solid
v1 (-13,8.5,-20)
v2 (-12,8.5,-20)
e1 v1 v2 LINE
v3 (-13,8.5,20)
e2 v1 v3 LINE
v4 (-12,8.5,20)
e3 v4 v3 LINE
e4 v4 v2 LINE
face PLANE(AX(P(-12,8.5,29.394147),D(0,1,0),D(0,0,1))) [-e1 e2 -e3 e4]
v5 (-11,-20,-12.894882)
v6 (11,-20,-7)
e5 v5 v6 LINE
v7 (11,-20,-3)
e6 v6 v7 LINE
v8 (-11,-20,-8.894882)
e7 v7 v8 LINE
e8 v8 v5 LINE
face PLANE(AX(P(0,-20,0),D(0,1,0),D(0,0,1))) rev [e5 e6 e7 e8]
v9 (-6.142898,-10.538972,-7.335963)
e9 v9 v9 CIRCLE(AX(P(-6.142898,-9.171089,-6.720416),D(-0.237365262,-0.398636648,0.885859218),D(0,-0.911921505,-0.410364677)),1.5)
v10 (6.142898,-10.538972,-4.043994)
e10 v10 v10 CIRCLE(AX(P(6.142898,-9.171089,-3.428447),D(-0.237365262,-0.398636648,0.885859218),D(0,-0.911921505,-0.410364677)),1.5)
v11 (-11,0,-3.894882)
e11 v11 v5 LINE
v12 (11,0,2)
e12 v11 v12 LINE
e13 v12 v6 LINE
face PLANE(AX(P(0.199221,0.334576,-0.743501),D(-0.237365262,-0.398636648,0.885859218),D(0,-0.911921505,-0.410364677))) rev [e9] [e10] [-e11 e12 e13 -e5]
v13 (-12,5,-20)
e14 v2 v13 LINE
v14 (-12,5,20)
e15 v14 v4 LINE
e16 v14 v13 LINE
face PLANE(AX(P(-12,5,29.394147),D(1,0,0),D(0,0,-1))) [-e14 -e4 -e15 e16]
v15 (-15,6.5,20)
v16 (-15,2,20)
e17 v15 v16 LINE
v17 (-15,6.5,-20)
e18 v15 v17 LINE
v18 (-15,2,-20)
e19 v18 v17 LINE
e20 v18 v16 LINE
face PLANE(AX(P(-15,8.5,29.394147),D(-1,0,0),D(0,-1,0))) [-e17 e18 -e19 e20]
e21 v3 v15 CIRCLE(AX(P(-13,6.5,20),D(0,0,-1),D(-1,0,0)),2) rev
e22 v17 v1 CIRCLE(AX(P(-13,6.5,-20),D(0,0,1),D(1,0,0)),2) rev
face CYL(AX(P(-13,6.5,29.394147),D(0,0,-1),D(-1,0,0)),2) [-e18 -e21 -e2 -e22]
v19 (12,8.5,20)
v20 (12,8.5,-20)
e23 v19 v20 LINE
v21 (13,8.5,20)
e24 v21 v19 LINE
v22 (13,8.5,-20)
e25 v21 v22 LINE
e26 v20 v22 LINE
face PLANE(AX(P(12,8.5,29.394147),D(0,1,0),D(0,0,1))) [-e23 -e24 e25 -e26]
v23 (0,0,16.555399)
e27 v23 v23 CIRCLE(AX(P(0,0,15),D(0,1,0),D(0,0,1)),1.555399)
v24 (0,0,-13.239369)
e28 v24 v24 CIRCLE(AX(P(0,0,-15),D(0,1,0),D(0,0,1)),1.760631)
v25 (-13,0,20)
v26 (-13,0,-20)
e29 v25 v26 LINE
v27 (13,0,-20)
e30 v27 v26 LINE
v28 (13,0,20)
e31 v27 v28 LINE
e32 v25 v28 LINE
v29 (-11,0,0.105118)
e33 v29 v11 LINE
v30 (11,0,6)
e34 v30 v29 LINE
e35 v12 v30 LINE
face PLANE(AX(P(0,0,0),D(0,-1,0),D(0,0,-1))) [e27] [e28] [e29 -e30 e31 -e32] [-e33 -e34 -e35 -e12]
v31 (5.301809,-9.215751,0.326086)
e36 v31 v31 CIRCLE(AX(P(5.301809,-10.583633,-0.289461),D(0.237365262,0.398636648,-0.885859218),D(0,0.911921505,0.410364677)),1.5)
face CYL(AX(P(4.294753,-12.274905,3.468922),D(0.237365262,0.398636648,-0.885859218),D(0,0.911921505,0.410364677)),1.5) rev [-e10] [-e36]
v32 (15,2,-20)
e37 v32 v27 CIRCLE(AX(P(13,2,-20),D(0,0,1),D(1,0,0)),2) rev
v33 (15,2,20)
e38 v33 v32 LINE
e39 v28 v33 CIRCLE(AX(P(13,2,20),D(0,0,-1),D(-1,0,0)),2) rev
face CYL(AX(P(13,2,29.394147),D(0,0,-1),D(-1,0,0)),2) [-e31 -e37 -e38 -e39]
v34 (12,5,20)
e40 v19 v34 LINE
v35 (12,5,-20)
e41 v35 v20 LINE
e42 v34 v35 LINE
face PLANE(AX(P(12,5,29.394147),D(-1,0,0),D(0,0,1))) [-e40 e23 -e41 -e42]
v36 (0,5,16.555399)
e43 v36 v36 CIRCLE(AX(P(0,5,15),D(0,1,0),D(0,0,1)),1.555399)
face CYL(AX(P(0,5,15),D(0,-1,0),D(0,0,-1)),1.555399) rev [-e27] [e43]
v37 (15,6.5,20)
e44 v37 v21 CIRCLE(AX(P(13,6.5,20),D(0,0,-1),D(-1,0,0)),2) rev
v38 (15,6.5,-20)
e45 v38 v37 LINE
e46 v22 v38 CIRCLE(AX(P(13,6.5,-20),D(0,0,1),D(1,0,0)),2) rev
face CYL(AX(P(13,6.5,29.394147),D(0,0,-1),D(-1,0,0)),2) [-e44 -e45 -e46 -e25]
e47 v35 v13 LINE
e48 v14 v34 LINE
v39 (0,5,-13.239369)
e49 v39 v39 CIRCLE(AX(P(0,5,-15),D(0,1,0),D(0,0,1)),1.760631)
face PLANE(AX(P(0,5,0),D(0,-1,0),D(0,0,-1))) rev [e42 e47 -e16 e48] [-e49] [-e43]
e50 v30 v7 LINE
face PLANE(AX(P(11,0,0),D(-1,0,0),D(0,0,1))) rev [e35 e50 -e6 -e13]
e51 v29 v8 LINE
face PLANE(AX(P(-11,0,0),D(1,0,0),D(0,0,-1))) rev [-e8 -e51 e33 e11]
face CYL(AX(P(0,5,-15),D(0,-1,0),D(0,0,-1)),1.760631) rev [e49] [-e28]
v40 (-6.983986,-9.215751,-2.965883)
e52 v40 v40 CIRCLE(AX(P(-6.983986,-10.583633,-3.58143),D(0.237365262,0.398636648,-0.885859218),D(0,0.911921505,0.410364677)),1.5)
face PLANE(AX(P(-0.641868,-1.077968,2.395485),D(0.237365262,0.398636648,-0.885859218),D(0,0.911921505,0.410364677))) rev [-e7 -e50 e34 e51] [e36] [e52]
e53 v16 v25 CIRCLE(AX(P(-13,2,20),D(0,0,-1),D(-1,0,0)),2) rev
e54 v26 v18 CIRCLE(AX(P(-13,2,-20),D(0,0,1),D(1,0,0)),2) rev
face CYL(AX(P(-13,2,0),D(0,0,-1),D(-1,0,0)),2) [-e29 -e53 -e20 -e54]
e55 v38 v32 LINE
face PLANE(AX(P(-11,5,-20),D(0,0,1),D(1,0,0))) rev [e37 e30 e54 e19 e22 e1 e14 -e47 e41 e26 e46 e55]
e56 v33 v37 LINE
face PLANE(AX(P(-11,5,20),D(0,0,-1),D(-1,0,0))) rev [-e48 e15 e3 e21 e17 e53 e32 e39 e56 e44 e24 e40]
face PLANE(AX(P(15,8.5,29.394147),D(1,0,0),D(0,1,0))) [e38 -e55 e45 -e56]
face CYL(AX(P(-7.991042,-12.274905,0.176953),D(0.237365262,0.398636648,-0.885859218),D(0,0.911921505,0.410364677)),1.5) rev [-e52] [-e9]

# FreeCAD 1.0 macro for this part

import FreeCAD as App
import Part
import Sketcher
from FreeCAD import Vector
Q = App.Units.Quantity


def edges_at(feature, points):
    """Names of the edges that pass closest to the given points."""
    edges = feature.Shape.Edges
    near = lambda p: min(range(len(edges)), key=lambda i: edges[i].distToShape(Part.Vertex(*p))[0])
    return sorted({f"Edge{near(p) + 1}" for p in points})

doc = App.newDocument("Part")
body = doc.addObject("PartDesign::Body", "Body")

# Sketch on XZ plane
sketch1 = doc.addObject("Sketcher::SketchObject", "Sketch")
body.addObject(sketch1)
sketch1.AttachmentSupport = (doc.XZ_Plane, [""])
sketch1.MapMode = "FlatFace"
sketch1.addGeometry([
    Part.LineSegment(Vector(-11, -20, 0), Vector(-11, 20, 0)),  # 0
    Part.LineSegment(Vector(-11, 20, 0), Vector(11, 20, 0)),  # 1
    Part.LineSegment(Vector(11, 20, 0), Vector(11, -20, 0)),  # 2
    Part.LineSegment(Vector(11, -20, 0), Vector(-11, -20, 0)),  # 3
    Part.Circle(Vector(0, 15, 0), Vector(0, 0, 1), 1.6),  # 4
    Part.Circle(Vector(0, -15, 0), Vector(0, 0, 1), 1.8),  # 5
], False)
sketch1.addConstraint([
    Sketcher.Constraint("Coincident", 0, 2, 1, 1),
    Sketcher.Constraint("Coincident", 1, 2, 2, 1),
    Sketcher.Constraint("Coincident", 2, 2, 3, 1),
    Sketcher.Constraint("Coincident", 3, 2, 0, 1),
    Sketcher.Constraint("Vertical", 0),
    Sketcher.Constraint("Horizontal", 1),
    Sketcher.Constraint("Vertical", 2),
    Sketcher.Constraint("Horizontal", 3),
    Sketcher.Constraint("Symmetric", 4, 3, 5, 3, -1, 1),
    Sketcher.Constraint("Symmetric", 0, 2, 2, 2, -1, 1),
    Sketcher.Constraint("PointOnObject", 4, 3, -2),
    Sketcher.Constraint("DistanceX", 1, 1, 1, 2, 22.0),
    Sketcher.Constraint("DistanceY", 0, 1, 0, 2, 40.0),
    Sketcher.Constraint("DistanceY", -1, 1, 4, 3, 15.0),
    Sketcher.Constraint("Diameter", 4, 3.110798),
    Sketcher.Constraint("Diameter", 5, 3.521262),
])
pad1 = doc.addObject("PartDesign::Pad", "Pad")
body.addObject(pad1)
pad1.Profile = sketch1
pad1.Length = 5
pad1.Reversed = True

# Sketch on XY plane
sketch2 = doc.addObject("Sketcher::SketchObject", "Sketch001")
body.addObject(sketch2)
sketch2.AttachmentSupport = (doc.XY_Plane, [""])
sketch2.MapMode = "FlatFace"
sketch2.AttachmentOffset = App.Placement(Vector(0, 0, -20), App.Rotation())
sketch2.addGeometry([
    Part.LineSegment(Vector(11, 5, 0), Vector(12, 5, 0)),  # 0
    Part.LineSegment(Vector(12, 5, 0), Vector(12, 8.5, 0)),  # 1
    Part.LineSegment(Vector(12, 8.5, 0), Vector(15, 8.5, 0)),  # 2
    Part.LineSegment(Vector(15, 8.5, 0), Vector(15, 0, 0)),  # 3
    Part.LineSegment(Vector(15, 0, 0), Vector(11, 0, 0)),  # 4
    Part.LineSegment(Vector(11, 0, 0), Vector(11, 5, 0)),  # 5
    Part.LineSegment(Vector(-11, 5, 0), Vector(-11, 0, 0)),  # 6
    Part.LineSegment(Vector(-11, 0, 0), Vector(-15, 0, 0)),  # 7
    Part.LineSegment(Vector(-15, 0, 0), Vector(-15, 8.5, 0)),  # 8
    Part.LineSegment(Vector(-15, 8.5, 0), Vector(-12, 8.5, 0)),  # 9
    Part.LineSegment(Vector(-12, 8.5, 0), Vector(-12, 5, 0)),  # 10
    Part.LineSegment(Vector(-12, 5, 0), Vector(-11, 5, 0)),  # 11
], False)
sketch2.addConstraint([
    Sketcher.Constraint("Coincident", 0, 2, 1, 1),
    Sketcher.Constraint("Coincident", 1, 2, 2, 1),
    Sketcher.Constraint("Coincident", 2, 2, 3, 1),
    Sketcher.Constraint("Coincident", 3, 2, 4, 1),
    Sketcher.Constraint("Coincident", 4, 2, 5, 1),
    Sketcher.Constraint("Coincident", 5, 2, 0, 1),
    Sketcher.Constraint("Coincident", 6, 2, 7, 1),
    Sketcher.Constraint("Coincident", 7, 2, 8, 1),
    Sketcher.Constraint("Coincident", 8, 2, 9, 1),
    Sketcher.Constraint("Coincident", 9, 2, 10, 1),
    Sketcher.Constraint("Coincident", 10, 2, 11, 1),
    Sketcher.Constraint("Coincident", 11, 2, 6, 1),
    Sketcher.Constraint("Horizontal", 0),
    Sketcher.Constraint("Vertical", 1),
    Sketcher.Constraint("Horizontal", 2),
    Sketcher.Constraint("Vertical", 3),
    Sketcher.Constraint("Horizontal", 4),
    Sketcher.Constraint("Vertical", 5),
    Sketcher.Constraint("Vertical", 6),
    Sketcher.Constraint("Horizontal", 7),
    Sketcher.Constraint("Vertical", 8),
    Sketcher.Constraint("Horizontal", 9),
    Sketcher.Constraint("Vertical", 10),
    Sketcher.Constraint("Horizontal", 11),
    Sketcher.Constraint("Symmetric", 4, 2, 6, 2, -1, 1),
    Sketcher.Constraint("Symmetric", 3, 2, 7, 2, -2),
    Sketcher.Constraint("Symmetric", 1, 2, 9, 2, -2),
    Sketcher.Constraint("Horizontal", 5, 2, 10, 2),
    Sketcher.Constraint("DistanceX", 0, 1, 0, 2, 1.0),
    Sketcher.Constraint("DistanceX", 2, 1, 2, 2, 3.0),
    Sketcher.Constraint("DistanceY", 5, 1, 5, 2, 5.0),
    Sketcher.Constraint("DistanceY", 1, 1, 1, 2, 3.5),
    Sketcher.Constraint("DistanceX", -1, 1, 0, 2, 12.0),
])
pad2 = doc.addObject("PartDesign::Pad", "Pad001")
body.addObject(pad2)
pad2.Profile = sketch2
pad2.Length = 40
doc.recompute()

fillet = doc.addObject("PartDesign::Fillet", "Fillet")
body.addObject(fillet)
fillet.Base = (pad2, edges_at(pad2, [
    (15, 0, 0),
    (15, 8.5, 0),
    (-15, 0, 0),
    (-15, 8.5, 0),
]))
fillet.Radius = 2

# Sketch on XZ plane
sketch3 = doc.addObject("Sketcher::SketchObject", "Sketch002")
body.addObject(sketch3)
sketch3.AttachmentSupport = (doc.XZ_Plane, [""])
sketch3.MapMode = "FlatFace"
sketch3.addGeometry([
    Part.LineSegment(Vector(11, 6, 0), Vector(-11, 0.1, 0)),
    Part.LineSegment(Vector(-11, 0.1, 0), Vector(-11, -3.9, 0)),
    Part.LineSegment(Vector(-11, -3.9, 0), Vector(11, 2, 0)),
    Part.LineSegment(Vector(11, 2, 0), Vector(11, 6, 0)),
], False)
sketch3.addConstraint([
    Sketcher.Constraint("Coincident", 0, 2, 1, 1),
    Sketcher.Constraint("Coincident", 1, 2, 2, 1),
    Sketcher.Constraint("Coincident", 2, 2, 3, 1),
    Sketcher.Constraint("Coincident", 3, 2, 0, 1),
    Sketcher.Constraint("Vertical", 1),
    Sketcher.Constraint("Vertical", 3),
    Sketcher.Constraint("Parallel", 0, 2),
    Sketcher.Constraint("DistanceY", 1, 2, 1, 1, 4.0),
    Sketcher.Constraint("Angle", 0, Q("-165 deg")),
    Sketcher.Constraint("DistanceX", 0, 2, -1, 1, 11.0),
    Sketcher.Constraint("DistanceX", -1, 1, 2, 2, 11.0),
    Sketcher.Constraint("DistanceY", -1, 1, 2, 2, 2.0),
])

# Sketch on XZ plane
sketch4 = doc.addObject("Sketcher::SketchObject", "Sketch003")
body.addObject(sketch4)
sketch4.AttachmentSupport = (doc.XZ_Plane, [""])
sketch4.MapMode = "FlatFace"
sketch4.AttachmentOffset = App.Placement(Vector(0, 0, 20), App.Rotation())
sketch4.addGeometry([
    Part.LineSegment(Vector(11, -7, 0), Vector(11, -3, 0)),
    Part.LineSegment(Vector(11, -3, 0), Vector(-11, -8.9, 0)),
    Part.LineSegment(Vector(-11, -8.9, 0), Vector(-11, -12.9, 0)),
    Part.LineSegment(Vector(-11, -12.9, 0), Vector(11, -7, 0)),
], False)
sketch4.addConstraint([
    Sketcher.Constraint("Coincident", 0, 2, 1, 1),
    Sketcher.Constraint("Coincident", 1, 2, 2, 1),
    Sketcher.Constraint("Coincident", 2, 2, 3, 1),
    Sketcher.Constraint("Coincident", 3, 2, 0, 1),
    Sketcher.Constraint("Vertical", 0),
    Sketcher.Constraint("Vertical", 2),
    Sketcher.Constraint("Parallel", 1, 3),
    Sketcher.Constraint("DistanceY", 0, 1, 0, 2, 4.0),
    Sketcher.Constraint("Angle", 1, Q("-165 deg")),
    Sketcher.Constraint("DistanceX", -1, 1, 0, 2, 11.0),
    Sketcher.Constraint("DistanceY", 0, 2, -1, 1, 3.0),
    Sketcher.Constraint("DistanceX", 1, 2, -1, 1, 11.0),
])

additiveloft = doc.addObject("PartDesign::AdditiveLoft", "AdditiveLoft")
body.addObject(additiveloft)
additiveloft.Profile = sketch3
additiveloft.Sections = [sketch4]

# Sketch on an angled plane
sketch5 = doc.addObject("Sketcher::SketchObject", "Sketch004")
body.addObject(sketch5)
sketch5.Placement = App.Placement(Vector(0.199221, 0.334576, -0.743501), App.Rotation(Vector(0.971420471, -0.097406319, 0.216458487), Vector(0, 0.911921504, 0.410364677), Vector(-0.237365262, -0.398636648, 0.885859218), "ZXY"))
sketch5.addGeometry([
    Part.Circle(Vector(6.1, -9.8, 0), Vector(0, 0, 1), 1.5),
    Part.Circle(Vector(-6.5, -11.1, 0), Vector(0, 0, 1), 1.5),
], False)
sketch5.addConstraint([
    Sketcher.Constraint("Equal", 0, 1),
    Sketcher.Constraint("Diameter", 0, 3.0),
    Sketcher.Constraint("DistanceX", -1, 1, 0, 3, 6.118542),
    Sketcher.Constraint("DistanceY", 0, 3, -1, 1, 9.770227),
    Sketcher.Constraint("DistanceX", 1, 3, -1, 1, 6.528705),
    Sketcher.Constraint("DistanceY", 1, 3, -1, 1, 11.121135),
])
pocket1 = doc.addObject("PartDesign::Pocket", "Pocket")
body.addObject(pocket1)
pocket1.Profile = sketch5
pocket1.Length = 3.543437
pocket1.Reversed = True

doc.recompute()
